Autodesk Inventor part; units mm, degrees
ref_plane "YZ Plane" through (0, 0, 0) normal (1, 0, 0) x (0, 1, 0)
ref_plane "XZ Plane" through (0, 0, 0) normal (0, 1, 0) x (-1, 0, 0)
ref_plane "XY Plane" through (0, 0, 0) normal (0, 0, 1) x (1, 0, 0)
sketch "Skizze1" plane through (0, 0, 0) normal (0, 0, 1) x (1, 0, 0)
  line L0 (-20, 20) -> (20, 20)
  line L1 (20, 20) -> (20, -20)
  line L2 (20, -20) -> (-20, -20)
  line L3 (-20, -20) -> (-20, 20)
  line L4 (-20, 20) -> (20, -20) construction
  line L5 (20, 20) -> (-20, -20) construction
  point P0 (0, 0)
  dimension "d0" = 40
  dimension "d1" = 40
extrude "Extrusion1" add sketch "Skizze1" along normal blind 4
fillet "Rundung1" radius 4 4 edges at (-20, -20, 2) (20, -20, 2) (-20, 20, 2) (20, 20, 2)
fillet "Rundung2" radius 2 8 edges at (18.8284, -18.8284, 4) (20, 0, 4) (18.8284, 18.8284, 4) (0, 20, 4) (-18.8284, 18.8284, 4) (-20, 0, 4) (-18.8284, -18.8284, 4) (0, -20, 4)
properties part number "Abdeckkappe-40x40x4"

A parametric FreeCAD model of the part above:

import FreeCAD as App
import Part
import Sketcher
from FreeCAD import Vector


def edges_at(feature, points):
    """Names of the edges that pass closest to the given points."""
    edges = feature.Shape.Edges
    near = lambda p: min(range(len(edges)), key=lambda i: edges[i].distToShape(Part.Vertex(*p))[0])
    return sorted({f"Edge{near(p) + 1}" for p in points})


def add_polygon(sketch, points):
    """Adds a closed chain of lines whose ends are joined by coincident constraints."""
    first, n = sketch.GeometryCount, len(points)
    for a, b in zip(points, points[1:] + points[:1]):
        sketch.addGeometry(Part.LineSegment(App.Vector(*a, 0), App.Vector(*b, 0)), False)
    for i in range(n):
        sketch.addConstraint(Sketcher.Constraint("Coincident", first + i, 2, first + (i + 1) % n, 1))

doc = App.newDocument("Part")
body = doc.addObject("PartDesign::Body", "Body")

sketch1 = body.newObject("Sketcher::SketchObject", "Sketch")
sketch1.AttachmentSupport = (doc.getObject("XY_Plane"), [""])
sketch1.MapMode = "FlatFace"
add_polygon(sketch1, [(20, 20), (-20, 20), (-20, -20), (20, -20)])
sketch1.addConstraint(Sketcher.Constraint("Horizontal", 0))
sketch1.addConstraint(Sketcher.Constraint("Vertical", 1))
sketch1.addConstraint(Sketcher.Constraint("Horizontal", 2))
sketch1.addConstraint(Sketcher.Constraint("Vertical", 3))
sketch1.addConstraint(Sketcher.Constraint("Symmetric", 0, 2, 2, 2, -1, 1))
sketch1.addConstraint(Sketcher.Constraint("Equal", 2, 1))
sketch1.addConstraint(Sketcher.Constraint("DistanceX", 0, 2, 0, 1, 40.0))
pad1 = body.newObject("PartDesign::Pad", "Pad")
pad1.Profile = sketch1
pad1.Length = 4
doc.recompute()

fillet = body.newObject("PartDesign::Fillet", "Fillet")
fillet.Base = (pad1, edges_at(pad1, [
    (-20, -20, 2),
    (20, -20, 2),
    (-20, 20, 2),
    (20, 20, 2),
]))
fillet.Radius = 4
doc.recompute()

fillet2 = body.newObject("PartDesign::Fillet", "Fillet001")
fillet2.Base = (fillet, edges_at(fillet, [
    (18.828, -18.828, 4),
    (20, 0, 4),
    (18.828, 18.828, 4),
    (0, 20, 4),
    (-18.828, 18.828, 4),
    (-20, 0, 4),
    (-18.828, -18.828, 4),
    (0, -20, 4),
]))
fillet2.Radius = 2

doc.recompute()
